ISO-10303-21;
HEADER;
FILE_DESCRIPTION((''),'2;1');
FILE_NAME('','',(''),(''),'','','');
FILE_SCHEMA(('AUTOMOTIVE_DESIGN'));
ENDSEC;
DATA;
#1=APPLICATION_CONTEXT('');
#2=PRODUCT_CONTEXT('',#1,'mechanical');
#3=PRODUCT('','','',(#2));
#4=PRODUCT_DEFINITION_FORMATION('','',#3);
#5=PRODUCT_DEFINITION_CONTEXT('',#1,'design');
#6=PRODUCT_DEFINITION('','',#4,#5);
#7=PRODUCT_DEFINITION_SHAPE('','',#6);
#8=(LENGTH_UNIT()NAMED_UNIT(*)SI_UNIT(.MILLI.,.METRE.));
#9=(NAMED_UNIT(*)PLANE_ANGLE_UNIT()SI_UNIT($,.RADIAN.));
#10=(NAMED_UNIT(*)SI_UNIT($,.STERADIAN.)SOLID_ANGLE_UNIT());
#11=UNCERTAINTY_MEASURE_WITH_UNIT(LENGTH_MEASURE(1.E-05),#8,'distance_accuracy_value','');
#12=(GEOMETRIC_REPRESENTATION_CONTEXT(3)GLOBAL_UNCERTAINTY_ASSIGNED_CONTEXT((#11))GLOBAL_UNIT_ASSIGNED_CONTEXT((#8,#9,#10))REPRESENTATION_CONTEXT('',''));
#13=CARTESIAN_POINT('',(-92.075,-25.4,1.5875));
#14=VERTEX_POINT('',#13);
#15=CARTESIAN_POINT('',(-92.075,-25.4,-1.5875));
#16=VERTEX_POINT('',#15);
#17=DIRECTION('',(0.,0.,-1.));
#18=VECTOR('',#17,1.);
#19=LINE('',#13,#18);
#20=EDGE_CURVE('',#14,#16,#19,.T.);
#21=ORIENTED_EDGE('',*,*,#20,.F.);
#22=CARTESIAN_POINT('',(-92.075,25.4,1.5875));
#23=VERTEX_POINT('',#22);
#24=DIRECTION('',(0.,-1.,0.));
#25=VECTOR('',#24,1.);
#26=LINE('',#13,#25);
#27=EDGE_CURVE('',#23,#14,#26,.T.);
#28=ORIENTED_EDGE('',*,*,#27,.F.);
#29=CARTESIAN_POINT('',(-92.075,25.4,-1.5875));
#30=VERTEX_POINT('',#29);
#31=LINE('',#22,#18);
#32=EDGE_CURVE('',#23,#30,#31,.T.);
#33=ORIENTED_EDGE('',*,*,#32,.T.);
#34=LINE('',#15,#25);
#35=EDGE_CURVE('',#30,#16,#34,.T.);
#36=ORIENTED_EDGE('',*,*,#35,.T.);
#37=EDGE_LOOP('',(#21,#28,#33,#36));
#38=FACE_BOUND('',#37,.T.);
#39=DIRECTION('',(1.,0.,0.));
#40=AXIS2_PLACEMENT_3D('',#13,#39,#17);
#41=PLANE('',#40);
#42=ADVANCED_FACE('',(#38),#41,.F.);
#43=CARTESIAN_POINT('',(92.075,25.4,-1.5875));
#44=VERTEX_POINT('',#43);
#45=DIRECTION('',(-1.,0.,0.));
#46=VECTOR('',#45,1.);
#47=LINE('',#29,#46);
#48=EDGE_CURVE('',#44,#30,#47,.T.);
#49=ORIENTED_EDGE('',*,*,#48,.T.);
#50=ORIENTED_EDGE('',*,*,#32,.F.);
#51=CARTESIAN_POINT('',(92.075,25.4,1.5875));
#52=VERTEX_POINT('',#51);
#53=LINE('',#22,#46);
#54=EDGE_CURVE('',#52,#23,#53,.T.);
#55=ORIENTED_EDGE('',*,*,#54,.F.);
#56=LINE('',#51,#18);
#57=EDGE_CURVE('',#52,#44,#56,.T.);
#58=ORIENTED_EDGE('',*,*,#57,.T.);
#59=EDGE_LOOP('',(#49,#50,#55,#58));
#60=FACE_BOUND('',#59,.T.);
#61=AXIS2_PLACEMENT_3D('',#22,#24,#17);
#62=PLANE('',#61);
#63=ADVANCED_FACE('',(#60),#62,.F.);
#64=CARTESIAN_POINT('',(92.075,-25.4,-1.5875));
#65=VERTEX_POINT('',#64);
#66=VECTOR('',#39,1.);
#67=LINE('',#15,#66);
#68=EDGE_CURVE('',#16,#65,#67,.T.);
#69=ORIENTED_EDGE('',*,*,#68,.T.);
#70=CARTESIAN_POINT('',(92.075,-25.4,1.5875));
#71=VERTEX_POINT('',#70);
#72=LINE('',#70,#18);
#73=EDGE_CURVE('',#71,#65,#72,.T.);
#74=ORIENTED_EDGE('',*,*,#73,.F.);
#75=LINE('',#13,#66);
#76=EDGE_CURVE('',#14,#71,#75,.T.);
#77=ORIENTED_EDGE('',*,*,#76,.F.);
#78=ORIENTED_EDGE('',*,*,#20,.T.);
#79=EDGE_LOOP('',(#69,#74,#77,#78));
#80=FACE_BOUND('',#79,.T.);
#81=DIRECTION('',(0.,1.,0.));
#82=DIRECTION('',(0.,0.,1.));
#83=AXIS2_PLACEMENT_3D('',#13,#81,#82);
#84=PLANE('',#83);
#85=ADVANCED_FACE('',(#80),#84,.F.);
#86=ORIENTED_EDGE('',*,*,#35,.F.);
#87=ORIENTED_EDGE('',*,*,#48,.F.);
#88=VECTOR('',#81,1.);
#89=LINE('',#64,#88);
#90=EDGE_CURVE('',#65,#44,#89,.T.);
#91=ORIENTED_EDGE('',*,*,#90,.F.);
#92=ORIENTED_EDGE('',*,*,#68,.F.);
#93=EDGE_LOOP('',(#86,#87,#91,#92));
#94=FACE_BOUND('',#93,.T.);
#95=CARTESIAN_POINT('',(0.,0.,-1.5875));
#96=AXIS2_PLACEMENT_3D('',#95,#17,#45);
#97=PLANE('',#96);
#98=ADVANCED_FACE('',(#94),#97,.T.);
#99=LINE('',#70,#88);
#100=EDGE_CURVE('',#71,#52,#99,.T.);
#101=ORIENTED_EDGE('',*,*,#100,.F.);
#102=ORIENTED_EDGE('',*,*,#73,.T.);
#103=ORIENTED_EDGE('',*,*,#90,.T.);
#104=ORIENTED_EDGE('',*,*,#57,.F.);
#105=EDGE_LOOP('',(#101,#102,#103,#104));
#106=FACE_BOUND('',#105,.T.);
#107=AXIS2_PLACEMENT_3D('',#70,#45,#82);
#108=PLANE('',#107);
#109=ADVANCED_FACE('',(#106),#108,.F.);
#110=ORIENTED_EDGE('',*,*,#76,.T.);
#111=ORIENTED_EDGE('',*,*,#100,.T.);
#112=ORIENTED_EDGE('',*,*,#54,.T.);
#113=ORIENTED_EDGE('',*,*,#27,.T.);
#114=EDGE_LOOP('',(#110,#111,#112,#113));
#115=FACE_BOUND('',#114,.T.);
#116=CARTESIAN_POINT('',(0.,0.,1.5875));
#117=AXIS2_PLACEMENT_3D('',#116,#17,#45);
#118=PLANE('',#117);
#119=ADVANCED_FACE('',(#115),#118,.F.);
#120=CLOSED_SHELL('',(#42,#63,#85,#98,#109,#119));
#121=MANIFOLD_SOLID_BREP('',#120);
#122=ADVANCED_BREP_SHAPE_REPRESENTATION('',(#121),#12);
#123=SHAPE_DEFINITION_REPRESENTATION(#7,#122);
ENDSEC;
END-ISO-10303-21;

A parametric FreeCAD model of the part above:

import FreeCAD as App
import Part
import Sketcher

V = App.Vector
Q = App.Units.Quantity

doc = App.newDocument("Part")
body = doc.addObject("PartDesign::Body", "Body")

sketch1 = body.newObject("Sketcher::SketchObject", "Sketch")
sketch1.AttachmentSupport = (doc.getObject("XY_Plane"), [""])
sketch1.MapMode = "FlatFace"
sketch1.addGeometry([
    Part.LineSegment(V(-92, 25, 0), V(-92, -25, 0)),
    Part.LineSegment(V(-92, -25, 0), V(92, -25, 0)),
    Part.LineSegment(V(92, -25, 0), V(92, 25, 0)),
    Part.LineSegment(V(92, 25, 0), V(-92, 25, 0)),
], False)
sketch1.addConstraint([
    Sketcher.Constraint("Coincident", 0, 2, 1, 1),
    Sketcher.Constraint("Coincident", 1, 2, 2, 1),
    Sketcher.Constraint("Coincident", 2, 2, 3, 1),
    Sketcher.Constraint("Coincident", 3, 2, 0, 1),
    Sketcher.Constraint("Vertical", 0),
    Sketcher.Constraint("Horizontal", 1),
    Sketcher.Constraint("Vertical", 2),
    Sketcher.Constraint("Horizontal", 3),
    Sketcher.Constraint("Symmetric", 0, 2, 2, 2, -1, 1),
    Sketcher.Constraint("DistanceY", 0, 2, 0, 1, Q("2 in")),
    Sketcher.Constraint("DistanceX", 1, 1, 1, 2, Q("7.25 in")),
])
pad1 = body.newObject("PartDesign::Pad", "Pad")
pad1.Profile = sketch1
pad1.Length = Q("0.125 in")
pad1.Midplane = True

doc.recompute()
